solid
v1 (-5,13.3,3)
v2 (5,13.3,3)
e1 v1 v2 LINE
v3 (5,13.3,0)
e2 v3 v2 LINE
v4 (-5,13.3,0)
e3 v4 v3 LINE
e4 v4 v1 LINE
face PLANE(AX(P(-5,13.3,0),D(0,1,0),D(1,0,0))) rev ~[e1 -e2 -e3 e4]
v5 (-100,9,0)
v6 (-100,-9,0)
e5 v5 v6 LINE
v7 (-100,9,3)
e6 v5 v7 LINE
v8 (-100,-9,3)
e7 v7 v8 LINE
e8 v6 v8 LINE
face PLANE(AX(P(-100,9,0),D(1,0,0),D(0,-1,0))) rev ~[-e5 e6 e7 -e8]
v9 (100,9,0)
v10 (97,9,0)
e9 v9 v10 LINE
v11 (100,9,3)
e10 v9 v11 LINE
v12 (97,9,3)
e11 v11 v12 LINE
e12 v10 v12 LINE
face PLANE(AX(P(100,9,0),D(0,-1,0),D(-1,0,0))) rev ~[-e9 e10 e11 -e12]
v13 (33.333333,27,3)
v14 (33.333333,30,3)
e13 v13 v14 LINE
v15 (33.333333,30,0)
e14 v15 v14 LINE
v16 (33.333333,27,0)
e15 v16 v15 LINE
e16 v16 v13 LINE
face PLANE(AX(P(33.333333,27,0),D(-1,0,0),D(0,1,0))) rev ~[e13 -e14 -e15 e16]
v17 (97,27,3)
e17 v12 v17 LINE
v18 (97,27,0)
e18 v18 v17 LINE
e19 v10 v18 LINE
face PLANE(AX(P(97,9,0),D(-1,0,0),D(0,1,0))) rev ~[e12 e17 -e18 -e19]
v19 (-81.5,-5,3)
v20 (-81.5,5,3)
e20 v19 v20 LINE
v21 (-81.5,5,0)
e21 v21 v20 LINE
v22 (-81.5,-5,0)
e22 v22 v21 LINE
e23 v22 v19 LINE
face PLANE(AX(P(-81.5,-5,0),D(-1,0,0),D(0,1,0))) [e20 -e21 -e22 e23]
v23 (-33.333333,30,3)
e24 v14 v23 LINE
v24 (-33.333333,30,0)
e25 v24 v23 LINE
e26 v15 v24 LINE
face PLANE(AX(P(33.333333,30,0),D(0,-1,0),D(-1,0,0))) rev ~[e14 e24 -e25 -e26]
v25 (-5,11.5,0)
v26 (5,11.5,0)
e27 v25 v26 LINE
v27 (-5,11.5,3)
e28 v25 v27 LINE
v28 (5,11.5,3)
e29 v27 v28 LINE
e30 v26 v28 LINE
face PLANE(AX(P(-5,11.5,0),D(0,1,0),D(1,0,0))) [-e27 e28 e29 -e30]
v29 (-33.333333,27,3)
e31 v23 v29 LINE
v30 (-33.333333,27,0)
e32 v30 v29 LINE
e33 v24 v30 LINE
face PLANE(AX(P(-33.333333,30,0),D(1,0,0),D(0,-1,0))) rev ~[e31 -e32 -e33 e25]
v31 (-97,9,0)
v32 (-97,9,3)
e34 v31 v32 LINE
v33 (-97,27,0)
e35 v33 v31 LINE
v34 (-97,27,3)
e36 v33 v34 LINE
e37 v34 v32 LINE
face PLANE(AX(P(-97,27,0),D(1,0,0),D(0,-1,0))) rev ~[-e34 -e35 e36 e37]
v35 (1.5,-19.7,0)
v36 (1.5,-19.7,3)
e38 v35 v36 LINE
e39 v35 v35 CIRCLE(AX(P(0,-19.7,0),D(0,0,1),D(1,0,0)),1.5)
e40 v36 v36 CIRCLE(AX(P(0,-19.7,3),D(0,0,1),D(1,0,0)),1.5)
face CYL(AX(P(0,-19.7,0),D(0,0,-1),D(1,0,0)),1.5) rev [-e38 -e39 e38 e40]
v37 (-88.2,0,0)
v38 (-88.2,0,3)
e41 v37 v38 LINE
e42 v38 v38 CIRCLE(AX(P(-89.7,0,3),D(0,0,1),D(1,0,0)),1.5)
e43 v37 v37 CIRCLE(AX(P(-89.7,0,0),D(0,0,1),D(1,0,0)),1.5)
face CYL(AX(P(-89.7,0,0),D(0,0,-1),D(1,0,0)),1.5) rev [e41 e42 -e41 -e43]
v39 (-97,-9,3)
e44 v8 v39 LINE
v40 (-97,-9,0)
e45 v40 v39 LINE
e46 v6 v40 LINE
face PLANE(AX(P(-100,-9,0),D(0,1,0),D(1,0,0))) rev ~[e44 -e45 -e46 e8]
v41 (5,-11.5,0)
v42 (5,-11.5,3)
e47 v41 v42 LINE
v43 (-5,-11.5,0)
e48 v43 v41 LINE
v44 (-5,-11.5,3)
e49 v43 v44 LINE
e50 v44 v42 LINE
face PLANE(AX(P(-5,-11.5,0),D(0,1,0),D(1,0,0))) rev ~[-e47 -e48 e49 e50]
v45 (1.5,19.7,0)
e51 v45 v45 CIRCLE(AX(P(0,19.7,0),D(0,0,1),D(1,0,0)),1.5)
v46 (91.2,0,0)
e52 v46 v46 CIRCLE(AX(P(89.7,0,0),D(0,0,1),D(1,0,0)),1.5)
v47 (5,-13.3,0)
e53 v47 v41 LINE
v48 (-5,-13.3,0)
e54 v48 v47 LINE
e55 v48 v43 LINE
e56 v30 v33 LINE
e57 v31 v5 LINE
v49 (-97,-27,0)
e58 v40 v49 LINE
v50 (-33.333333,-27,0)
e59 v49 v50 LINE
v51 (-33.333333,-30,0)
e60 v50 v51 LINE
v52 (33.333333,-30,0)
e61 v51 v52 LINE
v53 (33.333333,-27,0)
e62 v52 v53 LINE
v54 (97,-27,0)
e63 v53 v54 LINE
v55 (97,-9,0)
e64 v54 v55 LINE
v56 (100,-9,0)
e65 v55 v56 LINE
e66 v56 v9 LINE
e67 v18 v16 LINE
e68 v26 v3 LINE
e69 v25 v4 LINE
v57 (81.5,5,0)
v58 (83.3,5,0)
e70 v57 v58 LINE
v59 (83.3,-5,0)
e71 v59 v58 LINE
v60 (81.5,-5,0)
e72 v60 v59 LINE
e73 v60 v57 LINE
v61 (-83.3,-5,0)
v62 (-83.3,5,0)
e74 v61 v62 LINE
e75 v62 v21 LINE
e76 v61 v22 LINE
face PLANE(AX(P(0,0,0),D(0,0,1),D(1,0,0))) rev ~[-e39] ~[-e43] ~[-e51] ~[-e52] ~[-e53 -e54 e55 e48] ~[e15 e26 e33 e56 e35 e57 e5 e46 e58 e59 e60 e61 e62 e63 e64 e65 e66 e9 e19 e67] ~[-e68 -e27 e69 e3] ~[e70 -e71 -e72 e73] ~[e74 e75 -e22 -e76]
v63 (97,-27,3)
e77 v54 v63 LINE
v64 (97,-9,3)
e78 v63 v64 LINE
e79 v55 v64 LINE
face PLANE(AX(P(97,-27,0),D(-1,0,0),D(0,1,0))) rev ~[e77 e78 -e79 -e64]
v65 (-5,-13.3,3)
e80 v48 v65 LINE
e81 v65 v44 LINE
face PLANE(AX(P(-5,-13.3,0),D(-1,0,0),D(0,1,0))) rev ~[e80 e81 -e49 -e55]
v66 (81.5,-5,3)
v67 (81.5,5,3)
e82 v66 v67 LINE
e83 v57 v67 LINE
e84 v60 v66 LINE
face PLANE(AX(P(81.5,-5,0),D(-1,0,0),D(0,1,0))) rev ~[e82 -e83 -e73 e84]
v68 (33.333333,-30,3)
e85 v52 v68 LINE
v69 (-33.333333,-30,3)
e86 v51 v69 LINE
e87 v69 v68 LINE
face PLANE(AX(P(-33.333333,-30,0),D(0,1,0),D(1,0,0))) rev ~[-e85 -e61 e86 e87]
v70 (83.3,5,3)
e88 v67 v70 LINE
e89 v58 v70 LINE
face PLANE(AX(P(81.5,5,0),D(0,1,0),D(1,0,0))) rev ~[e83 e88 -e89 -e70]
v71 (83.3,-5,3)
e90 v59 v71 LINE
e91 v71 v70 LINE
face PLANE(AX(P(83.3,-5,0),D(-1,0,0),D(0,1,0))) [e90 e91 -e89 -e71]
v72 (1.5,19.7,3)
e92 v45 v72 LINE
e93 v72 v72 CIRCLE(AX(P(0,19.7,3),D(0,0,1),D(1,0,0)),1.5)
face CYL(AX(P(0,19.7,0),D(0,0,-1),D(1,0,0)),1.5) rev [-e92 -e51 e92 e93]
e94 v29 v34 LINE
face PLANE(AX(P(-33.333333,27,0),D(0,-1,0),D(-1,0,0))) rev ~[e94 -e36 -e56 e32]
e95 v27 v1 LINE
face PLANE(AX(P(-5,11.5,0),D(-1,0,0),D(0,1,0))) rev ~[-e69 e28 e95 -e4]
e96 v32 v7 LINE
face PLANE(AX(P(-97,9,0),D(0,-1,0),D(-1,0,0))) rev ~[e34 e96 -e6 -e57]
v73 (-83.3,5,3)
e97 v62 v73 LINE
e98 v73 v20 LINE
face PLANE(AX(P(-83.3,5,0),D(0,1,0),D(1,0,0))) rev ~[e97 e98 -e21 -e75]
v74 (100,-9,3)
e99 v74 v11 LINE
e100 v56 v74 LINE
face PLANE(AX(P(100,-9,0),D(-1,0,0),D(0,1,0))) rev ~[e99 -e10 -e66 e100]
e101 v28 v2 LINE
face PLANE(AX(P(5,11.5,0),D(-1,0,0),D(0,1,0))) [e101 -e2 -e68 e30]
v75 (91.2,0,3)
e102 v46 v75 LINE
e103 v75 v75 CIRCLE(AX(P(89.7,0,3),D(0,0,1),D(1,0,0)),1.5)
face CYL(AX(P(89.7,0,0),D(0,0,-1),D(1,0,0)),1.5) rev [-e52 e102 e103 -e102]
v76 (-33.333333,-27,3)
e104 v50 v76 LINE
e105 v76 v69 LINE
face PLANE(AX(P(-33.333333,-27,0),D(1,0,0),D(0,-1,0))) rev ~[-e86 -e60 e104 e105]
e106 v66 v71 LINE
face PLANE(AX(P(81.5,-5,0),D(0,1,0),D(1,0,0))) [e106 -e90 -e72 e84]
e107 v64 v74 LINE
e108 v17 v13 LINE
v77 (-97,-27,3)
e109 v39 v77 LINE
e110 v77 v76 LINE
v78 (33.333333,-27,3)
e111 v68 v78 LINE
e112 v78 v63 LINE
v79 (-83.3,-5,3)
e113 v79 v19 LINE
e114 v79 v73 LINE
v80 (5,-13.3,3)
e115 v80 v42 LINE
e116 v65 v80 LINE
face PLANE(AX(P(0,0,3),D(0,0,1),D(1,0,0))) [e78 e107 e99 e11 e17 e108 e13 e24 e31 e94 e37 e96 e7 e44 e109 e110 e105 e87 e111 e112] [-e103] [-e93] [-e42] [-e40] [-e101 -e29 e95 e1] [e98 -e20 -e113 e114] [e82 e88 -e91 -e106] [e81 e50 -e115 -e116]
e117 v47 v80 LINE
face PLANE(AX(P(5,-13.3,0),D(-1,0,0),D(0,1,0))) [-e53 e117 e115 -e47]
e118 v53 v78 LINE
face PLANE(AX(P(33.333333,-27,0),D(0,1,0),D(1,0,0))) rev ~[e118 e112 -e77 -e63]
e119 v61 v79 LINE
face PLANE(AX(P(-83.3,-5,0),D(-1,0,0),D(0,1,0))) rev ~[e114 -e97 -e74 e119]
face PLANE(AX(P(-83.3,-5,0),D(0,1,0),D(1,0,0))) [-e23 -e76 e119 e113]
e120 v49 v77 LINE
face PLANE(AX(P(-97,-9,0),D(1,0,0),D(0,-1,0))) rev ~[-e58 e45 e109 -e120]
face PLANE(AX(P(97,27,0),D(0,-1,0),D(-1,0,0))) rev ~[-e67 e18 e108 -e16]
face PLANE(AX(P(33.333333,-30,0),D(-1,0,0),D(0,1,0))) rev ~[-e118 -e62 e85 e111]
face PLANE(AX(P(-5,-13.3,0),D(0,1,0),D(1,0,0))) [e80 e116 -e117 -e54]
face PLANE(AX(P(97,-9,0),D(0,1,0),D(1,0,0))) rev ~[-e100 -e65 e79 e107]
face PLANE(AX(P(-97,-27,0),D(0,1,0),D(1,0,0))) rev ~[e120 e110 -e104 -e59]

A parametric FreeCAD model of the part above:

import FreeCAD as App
import Part
import Sketcher
from FreeCAD import Vector


def add_polygon(sketch, points):
    """Adds a closed chain of lines whose ends are joined by coincident constraints."""
    first, n = sketch.GeometryCount, len(points)
    for a, b in zip(points, points[1:] + points[:1]):
        sketch.addGeometry(Part.LineSegment(App.Vector(*a, 0), App.Vector(*b, 0)), False)
    for i in range(n):
        sketch.addConstraint(Sketcher.Constraint("Coincident", first + i, 2, first + (i + 1) % n, 1))

doc = App.newDocument("Part")
body = doc.addObject("PartDesign::Body", "Body")

# Sketch on XY plane
sketch1 = body.newObject("Sketcher::SketchObject", "Sketch")
sketch1.AttachmentSupport = (doc.getObject("XY_Plane"), [""])
sketch1.MapMode = "FlatFace"
add_polygon(sketch1, [(-33.3, 27), (-97, 27), (-97, 9), (-100, 9), (-100, -9), (-97, -9), (-97, -27), (-33.3, -27), (-33.3, -30), (33.3, -30), (33.3, -27), (97, -27), (97, -9), (100, -9), (100, 9), (97, 9), (97, 27), (33.3, 27), (33.3, 30), (-33.3, 30)])  # lines 0-19
sketch1.addGeometry(Part.Circle(Vector(0, -19.7, 0), Vector(0, 0, 1), 1.5), False)  # 20
add_polygon(sketch1, [(5, -13.3), (-5, -13.3), (-5, -11.5), (5, -11.5)])  # lines 21-24
sketch1.addGeometry(Part.Circle(Vector(-89.7, 0, 0), Vector(0, 0, 1), 1.5), False)  # 25
add_polygon(sketch1, [(-81.5, -5), (-83.3, -5), (-83.3, 5), (-81.5, 5)])  # lines 26-29
add_polygon(sketch1, [(83.3, -5), (81.5, -5), (81.5, 5), (83.3, 5)])  # lines 30-33
sketch1.addGeometry(Part.Circle(Vector(89.7, 0, 0), Vector(0, 0, 1), 1.5), False)  # 34
add_polygon(sketch1, [(5, 11.5), (-5, 11.5), (-5, 13.3), (5, 13.3)])  # lines 35-38
sketch1.addGeometry(Part.Circle(Vector(0, 19.7, 0), Vector(0, 0, 1), 1.5), False)  # 39
sketch1.addConstraint([
    Sketcher.Constraint("Horizontal", 0),
    Sketcher.Constraint("Vertical", 1),
    Sketcher.Constraint("Horizontal", 2),
    Sketcher.Constraint("Vertical", 3),
    Sketcher.Constraint("Horizontal", 4),
    Sketcher.Constraint("Vertical", 5),
    Sketcher.Constraint("Horizontal", 6),
    Sketcher.Constraint("Vertical", 7),
    Sketcher.Constraint("Horizontal", 8),
    Sketcher.Constraint("Vertical", 9),
    Sketcher.Constraint("Horizontal", 10),
    Sketcher.Constraint("Vertical", 11),
    Sketcher.Constraint("Horizontal", 12),
    Sketcher.Constraint("Vertical", 13),
    Sketcher.Constraint("Horizontal", 14),
    Sketcher.Constraint("Vertical", 15),
    Sketcher.Constraint("Horizontal", 16),
    Sketcher.Constraint("Vertical", 17),
    Sketcher.Constraint("Horizontal", 18),
    Sketcher.Constraint("Vertical", 19),
    Sketcher.Constraint("Horizontal", 21),
    Sketcher.Constraint("Vertical", 22),
    Sketcher.Constraint("Horizontal", 23),
    Sketcher.Constraint("Vertical", 24),
    Sketcher.Constraint("Horizontal", 26),
    Sketcher.Constraint("Vertical", 27),
    Sketcher.Constraint("Horizontal", 28),
    Sketcher.Constraint("Vertical", 29),
    Sketcher.Constraint("Horizontal", 30),
    Sketcher.Constraint("Vertical", 31),
    Sketcher.Constraint("Horizontal", 32),
    Sketcher.Constraint("Vertical", 33),
    Sketcher.Constraint("Horizontal", 35),
    Sketcher.Constraint("Vertical", 36),
    Sketcher.Constraint("Horizontal", 37),
    Sketcher.Constraint("Vertical", 38),
    Sketcher.Constraint("Equal", 20, 25),
    Sketcher.Constraint("Equal", 25, 34),
    Sketcher.Constraint("Equal", 34, 39),
    Sketcher.Constraint("Symmetric", 25, 3, 34, 3, -1, 1),
    Sketcher.Constraint("Symmetric", 20, 3, 39, 3, -1, 1),
    Sketcher.Constraint("Symmetric", 0, 2, 10, 2, -1, 1),
    Sketcher.Constraint("Symmetric", 2, 2, 12, 2, -1, 1),
    Sketcher.Constraint("Symmetric", 4, 2, 14, 2, -1, 1),
    Sketcher.Constraint("Symmetric", 6, 2, 16, 2, -1, 1),
    Sketcher.Constraint("Symmetric", 8, 2, 18, 2, -1, 1),
    Sketcher.Constraint("Symmetric", 28, 2, 30, 2, -1, 1),
    Sketcher.Constraint("Symmetric", 26, 2, 32, 2, -1, 1),
    Sketcher.Constraint("Symmetric", 23, 2, 35, 2, -1, 1),
    Sketcher.Constraint("Symmetric", 21, 2, 37, 2, -1, 1),
    Sketcher.Constraint("Symmetric", 6, 2, 9, 2, -2),
    Sketcher.Constraint("Symmetric", 4, 2, 11, 2, -2),
    Sketcher.Constraint("PointOnObject", 20, 3, -2),
    Sketcher.Constraint("PointOnObject", 25, 3, -1),
    Sketcher.Constraint("Horizontal", 29, 2, 30, 2),
    Sketcher.Constraint("Vertical", 22, 2, 35, 2),
    Sketcher.Constraint("Equal", 1, 3),
    Sketcher.Constraint("Equal", 14, 7),
    Sketcher.Constraint("Equal", 32, 22),
    Sketcher.Constraint("Equal", 37, 27),
    Sketcher.Constraint("Diameter", 20, 3.0),
    Sketcher.Constraint("DistanceX", 2, 2, 2, 1, 3.0),
    Sketcher.Constraint("DistanceX", 21, 2, 21, 1, 10.0),
    Sketcher.Constraint("DistanceY", 1, 2, 1, 1, 18.0),
    Sketcher.Constraint("DistanceX", 26, 2, 26, 1, 1.8),
    Sketcher.Constraint("DistanceX", 0, 2, -1, 1, 97.0),
    Sketcher.Constraint("DistanceY", 21, 2, 39, 3, 33.0),
    Sketcher.Constraint("DistanceY", 22, 2, 35, 2, 23.0),
    Sketcher.Constraint("DistanceX", 25, 3, -1, 1, 89.7),
    Sketcher.Constraint("DistanceX", 26, 2, -1, 1, 83.3),
    Sketcher.Constraint("DistanceX", 0, 2, 0, 1, 63.666667),
])
pad1 = body.newObject("PartDesign::Pad", "Pad")
pad1.Profile = sketch1
pad1.Length = 3

doc.recompute()
